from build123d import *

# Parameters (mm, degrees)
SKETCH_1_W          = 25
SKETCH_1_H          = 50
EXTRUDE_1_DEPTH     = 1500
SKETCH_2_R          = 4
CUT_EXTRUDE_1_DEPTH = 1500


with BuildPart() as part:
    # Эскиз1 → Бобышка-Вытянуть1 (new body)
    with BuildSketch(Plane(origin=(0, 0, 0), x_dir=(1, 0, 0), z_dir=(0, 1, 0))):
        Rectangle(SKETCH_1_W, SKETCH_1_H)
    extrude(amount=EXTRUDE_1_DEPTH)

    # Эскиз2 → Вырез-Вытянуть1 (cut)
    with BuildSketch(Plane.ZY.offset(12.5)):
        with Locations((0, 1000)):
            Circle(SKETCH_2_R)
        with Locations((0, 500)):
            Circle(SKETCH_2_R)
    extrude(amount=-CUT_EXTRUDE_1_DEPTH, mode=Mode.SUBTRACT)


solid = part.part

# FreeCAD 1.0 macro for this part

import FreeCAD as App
import Part
import Sketcher


def add_polygon(sketch, points):
    """Adds a closed chain of lines whose ends are joined by coincident constraints."""
    first, n = sketch.GeometryCount, len(points)
    for a, b in zip(points, points[1:] + points[:1]):
        sketch.addGeometry(Part.LineSegment(App.Vector(*a, 0), App.Vector(*b, 0)), False)
    for i in range(n):
        sketch.addConstraint(Sketcher.Constraint("Coincident", first + i, 2, first + (i + 1) % n, 1))

doc = App.newDocument("Part")
params = doc.addObject("Spreadsheet::Sheet", "Params")
for row, (alias, value) in enumerate([
    ("sketch1_width", "25 mm"),
    ("sketch1_height", "50 mm"),
    ("pad1_length", "1500 mm"),
    ("sketch2_diameter", "8 mm"),
    ("pocket1_length", "1500 mm"),
], start=1):
    params.set(f"A{row}", alias)
    params.set(f"B{row}", "=" + value)
    params.setAlias(f"B{row}", alias)

body = doc.addObject("PartDesign::Body", "Body")

sketch1 = body.newObject("Sketcher::SketchObject", "Sketch")
sketch1.AttachmentSupport = (doc.getObject("XZ_Plane"), [""])
sketch1.MapMode = "FlatFace"
add_polygon(sketch1, [(-12.5, -25), (-12.5, 25), (12.5, 25), (12.5, -25)])
sketch1.addConstraint([
    Sketcher.Constraint("Vertical", 0),
    Sketcher.Constraint("Horizontal", 1),
    Sketcher.Constraint("Vertical", 2),
    Sketcher.Constraint("Horizontal", 3),
    Sketcher.Constraint("Symmetric", 0, 2, 2, 2, -1, 1),
    Sketcher.Constraint("DistanceX", 1, 1, 1, 2, 25.0),
    Sketcher.Constraint("DistanceY", 0, 1, 0, 2, 50.0),
])
sketch1.setExpression("Constraints[9]", "Params.sketch1_width")
sketch1.setExpression("Constraints[10]", "Params.sketch1_height")
pad1 = body.newObject("PartDesign::Pad", "Pad")
pad1.Profile = sketch1
pad1.setExpression("Length", "Params.pad1_length")
pad1.Reversed = True

sketch2 = body.newObject("Sketcher::SketchObject", "Sketch001")
sketch2.AttachmentSupport = (doc.getObject("YZ_Plane"), [""])
sketch2.MapMode = "FlatFace"
sketch2.AttachmentOffset = App.Placement(App.Vector(0, 0, -12.5), App.Rotation())
sketch2.addGeometry([
    Part.Circle(App.Vector(1000, 0, 0), App.Vector(0, 0, 1), 4),
    Part.Circle(App.Vector(500, 0, 0), App.Vector(0, 0, 1), 4),
], False)
sketch2.addConstraint([
    Sketcher.Constraint("Equal", 0, 1),
    Sketcher.Constraint("PointOnObject", 0, 3, -1),
    Sketcher.Constraint("PointOnObject", 1, 3, -1),
    Sketcher.Constraint("Diameter", 0, 8.0),
    Sketcher.Constraint("DistanceX", -1, 1, 0, 3, 1000.0),
    Sketcher.Constraint("DistanceX", -1, 1, 1, 3, 500.0),
])
sketch2.setExpression("Constraints[3]", "Params.sketch2_diameter")
pocket1 = body.newObject("PartDesign::Pocket", "Pocket")
pocket1.Profile = sketch2
pocket1.setExpression("Length", "Params.pocket1_length")
pocket1.Reversed = True

doc.recompute()
